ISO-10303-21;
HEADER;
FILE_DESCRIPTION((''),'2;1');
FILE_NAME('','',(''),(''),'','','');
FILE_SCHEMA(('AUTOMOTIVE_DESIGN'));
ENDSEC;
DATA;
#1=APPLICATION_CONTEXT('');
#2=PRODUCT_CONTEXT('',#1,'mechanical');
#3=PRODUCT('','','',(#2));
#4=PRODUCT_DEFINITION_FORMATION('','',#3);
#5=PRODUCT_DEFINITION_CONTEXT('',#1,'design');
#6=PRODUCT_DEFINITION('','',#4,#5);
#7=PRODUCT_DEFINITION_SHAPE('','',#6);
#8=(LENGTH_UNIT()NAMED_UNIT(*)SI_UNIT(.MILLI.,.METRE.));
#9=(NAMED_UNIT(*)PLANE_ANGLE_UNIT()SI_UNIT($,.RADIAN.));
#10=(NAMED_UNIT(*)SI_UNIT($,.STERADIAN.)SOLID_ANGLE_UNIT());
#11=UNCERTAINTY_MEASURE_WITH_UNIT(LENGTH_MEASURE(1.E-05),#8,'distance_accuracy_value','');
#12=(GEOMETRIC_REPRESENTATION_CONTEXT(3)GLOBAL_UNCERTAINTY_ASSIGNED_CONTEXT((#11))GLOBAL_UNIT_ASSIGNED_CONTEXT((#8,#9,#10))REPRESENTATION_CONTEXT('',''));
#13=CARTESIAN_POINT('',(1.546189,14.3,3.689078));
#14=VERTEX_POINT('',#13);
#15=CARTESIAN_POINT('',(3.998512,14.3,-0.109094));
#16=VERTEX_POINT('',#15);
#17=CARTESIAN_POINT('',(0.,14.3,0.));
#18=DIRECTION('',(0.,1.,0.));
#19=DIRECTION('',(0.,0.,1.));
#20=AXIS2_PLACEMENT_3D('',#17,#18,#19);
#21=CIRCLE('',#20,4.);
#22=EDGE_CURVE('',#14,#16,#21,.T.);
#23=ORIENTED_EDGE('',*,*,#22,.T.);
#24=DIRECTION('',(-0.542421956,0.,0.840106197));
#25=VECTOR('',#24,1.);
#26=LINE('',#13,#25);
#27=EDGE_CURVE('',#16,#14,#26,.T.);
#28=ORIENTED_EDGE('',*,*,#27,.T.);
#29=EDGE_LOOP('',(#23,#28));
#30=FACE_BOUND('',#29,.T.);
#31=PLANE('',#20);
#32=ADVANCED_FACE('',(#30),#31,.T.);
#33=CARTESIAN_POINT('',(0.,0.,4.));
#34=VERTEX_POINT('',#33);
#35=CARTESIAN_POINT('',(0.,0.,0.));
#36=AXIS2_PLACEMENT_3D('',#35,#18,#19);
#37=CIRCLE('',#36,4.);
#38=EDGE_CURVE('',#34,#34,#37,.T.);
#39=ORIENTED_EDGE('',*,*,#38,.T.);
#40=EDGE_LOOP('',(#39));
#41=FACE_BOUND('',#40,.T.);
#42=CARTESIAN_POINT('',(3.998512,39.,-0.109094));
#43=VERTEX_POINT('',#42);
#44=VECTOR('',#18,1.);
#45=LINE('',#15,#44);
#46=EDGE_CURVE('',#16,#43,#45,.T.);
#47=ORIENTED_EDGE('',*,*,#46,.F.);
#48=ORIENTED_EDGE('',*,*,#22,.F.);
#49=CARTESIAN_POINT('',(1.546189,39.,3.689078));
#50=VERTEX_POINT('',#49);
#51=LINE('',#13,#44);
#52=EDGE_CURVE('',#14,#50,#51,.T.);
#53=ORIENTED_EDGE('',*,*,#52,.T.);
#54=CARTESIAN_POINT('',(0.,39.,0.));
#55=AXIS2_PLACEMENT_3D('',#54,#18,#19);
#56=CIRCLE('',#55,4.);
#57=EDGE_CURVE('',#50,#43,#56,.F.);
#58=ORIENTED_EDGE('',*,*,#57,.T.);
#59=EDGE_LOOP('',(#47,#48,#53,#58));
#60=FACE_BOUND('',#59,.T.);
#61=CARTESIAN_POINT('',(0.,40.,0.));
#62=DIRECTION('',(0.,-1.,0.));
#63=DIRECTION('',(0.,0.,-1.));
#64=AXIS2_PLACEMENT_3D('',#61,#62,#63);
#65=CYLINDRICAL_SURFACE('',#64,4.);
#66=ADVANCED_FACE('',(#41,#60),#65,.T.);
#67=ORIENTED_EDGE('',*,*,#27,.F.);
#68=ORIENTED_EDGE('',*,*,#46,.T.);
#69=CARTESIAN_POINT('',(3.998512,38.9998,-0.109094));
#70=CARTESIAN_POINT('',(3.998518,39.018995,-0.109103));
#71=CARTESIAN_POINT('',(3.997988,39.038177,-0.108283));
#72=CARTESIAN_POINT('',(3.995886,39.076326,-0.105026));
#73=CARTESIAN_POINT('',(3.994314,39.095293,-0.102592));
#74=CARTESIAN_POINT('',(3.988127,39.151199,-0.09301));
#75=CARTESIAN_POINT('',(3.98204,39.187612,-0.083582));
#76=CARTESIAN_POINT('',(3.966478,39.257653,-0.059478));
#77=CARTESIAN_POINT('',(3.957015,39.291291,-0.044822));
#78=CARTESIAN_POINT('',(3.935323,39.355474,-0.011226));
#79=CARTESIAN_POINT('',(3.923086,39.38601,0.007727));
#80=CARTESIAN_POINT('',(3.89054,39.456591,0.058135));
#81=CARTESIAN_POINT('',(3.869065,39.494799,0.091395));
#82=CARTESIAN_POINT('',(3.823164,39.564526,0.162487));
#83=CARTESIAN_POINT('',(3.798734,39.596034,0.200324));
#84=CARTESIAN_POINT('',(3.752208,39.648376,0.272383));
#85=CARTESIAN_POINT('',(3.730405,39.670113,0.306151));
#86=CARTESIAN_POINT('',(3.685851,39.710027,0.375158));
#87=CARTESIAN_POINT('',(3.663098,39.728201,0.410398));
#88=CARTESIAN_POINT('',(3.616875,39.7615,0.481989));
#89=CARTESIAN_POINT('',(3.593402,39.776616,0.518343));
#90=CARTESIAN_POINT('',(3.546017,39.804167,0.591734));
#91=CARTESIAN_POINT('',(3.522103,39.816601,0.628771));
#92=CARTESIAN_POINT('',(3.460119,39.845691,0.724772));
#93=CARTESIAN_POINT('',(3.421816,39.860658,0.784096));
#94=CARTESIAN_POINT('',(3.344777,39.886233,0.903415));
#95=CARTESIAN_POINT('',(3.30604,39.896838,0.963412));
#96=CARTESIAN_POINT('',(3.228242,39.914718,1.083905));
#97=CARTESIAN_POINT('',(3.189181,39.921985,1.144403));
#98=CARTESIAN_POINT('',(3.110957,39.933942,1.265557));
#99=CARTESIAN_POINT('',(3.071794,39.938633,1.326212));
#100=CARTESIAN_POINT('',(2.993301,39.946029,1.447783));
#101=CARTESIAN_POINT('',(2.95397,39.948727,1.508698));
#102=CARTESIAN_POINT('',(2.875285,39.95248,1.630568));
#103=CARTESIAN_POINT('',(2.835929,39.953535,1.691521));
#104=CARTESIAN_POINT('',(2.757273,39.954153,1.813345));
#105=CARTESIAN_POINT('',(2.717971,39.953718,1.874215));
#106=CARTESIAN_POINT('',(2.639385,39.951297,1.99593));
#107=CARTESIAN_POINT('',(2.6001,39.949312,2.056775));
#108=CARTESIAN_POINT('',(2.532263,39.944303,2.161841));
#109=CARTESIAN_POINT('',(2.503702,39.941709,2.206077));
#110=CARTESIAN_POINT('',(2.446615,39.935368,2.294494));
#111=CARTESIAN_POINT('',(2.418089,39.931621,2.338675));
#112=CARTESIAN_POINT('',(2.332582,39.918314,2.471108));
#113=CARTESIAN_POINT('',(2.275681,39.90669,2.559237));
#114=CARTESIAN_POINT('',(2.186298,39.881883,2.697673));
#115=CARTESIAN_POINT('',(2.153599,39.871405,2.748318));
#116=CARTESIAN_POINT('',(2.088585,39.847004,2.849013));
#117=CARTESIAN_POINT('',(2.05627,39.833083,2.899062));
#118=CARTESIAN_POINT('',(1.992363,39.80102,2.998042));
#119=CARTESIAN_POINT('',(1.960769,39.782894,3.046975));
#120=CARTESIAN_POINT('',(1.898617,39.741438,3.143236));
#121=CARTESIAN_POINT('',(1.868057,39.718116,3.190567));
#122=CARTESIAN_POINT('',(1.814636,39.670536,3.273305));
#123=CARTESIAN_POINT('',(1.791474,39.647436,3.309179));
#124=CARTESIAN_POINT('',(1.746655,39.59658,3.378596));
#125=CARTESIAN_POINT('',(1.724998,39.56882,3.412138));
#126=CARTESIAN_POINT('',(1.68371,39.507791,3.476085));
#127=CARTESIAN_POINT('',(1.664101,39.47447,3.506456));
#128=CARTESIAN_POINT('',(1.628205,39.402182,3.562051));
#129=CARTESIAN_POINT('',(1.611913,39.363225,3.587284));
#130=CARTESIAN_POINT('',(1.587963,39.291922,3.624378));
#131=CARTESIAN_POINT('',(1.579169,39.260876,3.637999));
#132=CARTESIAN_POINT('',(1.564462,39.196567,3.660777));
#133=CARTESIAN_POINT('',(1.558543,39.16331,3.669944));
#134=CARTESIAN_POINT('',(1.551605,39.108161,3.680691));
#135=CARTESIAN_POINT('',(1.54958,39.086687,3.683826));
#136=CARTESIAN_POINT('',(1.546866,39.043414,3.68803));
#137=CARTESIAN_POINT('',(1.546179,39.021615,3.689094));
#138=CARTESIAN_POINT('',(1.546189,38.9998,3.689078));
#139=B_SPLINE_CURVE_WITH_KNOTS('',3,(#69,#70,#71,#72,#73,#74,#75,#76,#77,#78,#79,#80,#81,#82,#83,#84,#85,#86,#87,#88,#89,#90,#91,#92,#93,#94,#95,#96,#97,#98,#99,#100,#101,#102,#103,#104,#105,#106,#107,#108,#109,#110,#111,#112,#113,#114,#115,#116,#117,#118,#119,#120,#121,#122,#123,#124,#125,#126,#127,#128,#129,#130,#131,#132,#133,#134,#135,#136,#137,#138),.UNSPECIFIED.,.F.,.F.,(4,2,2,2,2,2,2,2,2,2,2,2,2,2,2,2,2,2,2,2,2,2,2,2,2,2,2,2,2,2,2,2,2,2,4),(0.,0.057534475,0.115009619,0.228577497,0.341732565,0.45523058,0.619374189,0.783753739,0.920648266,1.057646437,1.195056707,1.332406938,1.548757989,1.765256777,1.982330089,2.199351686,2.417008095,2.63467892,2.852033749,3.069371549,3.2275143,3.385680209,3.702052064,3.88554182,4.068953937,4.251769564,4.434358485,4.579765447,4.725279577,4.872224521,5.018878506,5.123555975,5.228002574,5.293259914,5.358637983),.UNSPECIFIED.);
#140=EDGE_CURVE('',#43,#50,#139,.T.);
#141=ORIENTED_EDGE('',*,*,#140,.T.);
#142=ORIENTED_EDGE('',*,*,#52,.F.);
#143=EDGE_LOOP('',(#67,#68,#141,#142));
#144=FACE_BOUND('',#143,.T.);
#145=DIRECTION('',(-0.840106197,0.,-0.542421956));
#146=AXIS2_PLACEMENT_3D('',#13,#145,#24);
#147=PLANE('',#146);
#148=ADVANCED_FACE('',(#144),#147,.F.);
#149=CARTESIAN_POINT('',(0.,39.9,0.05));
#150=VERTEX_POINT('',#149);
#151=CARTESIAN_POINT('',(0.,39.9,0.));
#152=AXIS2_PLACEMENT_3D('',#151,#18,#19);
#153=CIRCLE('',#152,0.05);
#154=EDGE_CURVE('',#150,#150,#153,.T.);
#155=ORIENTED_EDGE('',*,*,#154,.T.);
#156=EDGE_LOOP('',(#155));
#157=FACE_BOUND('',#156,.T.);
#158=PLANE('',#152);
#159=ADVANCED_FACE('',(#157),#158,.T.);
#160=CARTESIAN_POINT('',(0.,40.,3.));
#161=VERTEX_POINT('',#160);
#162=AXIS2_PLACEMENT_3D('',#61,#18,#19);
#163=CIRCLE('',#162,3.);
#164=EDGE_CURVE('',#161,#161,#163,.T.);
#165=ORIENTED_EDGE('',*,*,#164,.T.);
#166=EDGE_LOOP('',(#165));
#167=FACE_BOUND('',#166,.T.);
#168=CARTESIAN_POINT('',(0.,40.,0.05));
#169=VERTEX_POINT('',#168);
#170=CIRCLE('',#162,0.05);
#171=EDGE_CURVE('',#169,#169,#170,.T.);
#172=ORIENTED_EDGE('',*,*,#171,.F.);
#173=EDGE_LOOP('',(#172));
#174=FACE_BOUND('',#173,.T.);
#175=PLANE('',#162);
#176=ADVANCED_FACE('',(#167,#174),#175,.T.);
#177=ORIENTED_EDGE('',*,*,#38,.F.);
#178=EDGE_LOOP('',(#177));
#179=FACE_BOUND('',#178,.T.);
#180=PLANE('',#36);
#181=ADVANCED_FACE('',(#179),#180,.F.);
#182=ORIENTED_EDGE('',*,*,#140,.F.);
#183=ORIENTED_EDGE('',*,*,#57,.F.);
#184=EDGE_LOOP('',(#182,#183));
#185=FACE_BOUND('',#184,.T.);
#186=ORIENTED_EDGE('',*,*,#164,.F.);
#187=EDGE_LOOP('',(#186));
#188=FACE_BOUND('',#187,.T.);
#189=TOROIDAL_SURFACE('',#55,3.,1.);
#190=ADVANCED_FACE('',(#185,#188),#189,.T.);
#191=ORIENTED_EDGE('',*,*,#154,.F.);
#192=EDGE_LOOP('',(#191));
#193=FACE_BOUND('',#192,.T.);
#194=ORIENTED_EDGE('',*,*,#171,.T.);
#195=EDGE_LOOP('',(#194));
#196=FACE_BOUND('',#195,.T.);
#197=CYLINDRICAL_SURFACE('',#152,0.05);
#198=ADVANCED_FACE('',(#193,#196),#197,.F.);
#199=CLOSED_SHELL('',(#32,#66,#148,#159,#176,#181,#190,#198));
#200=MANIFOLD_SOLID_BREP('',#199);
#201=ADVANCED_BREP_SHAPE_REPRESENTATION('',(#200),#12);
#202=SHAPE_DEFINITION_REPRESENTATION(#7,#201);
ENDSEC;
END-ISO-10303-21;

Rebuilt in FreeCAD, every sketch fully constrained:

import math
import FreeCAD as App
import Part
import Sketcher

V = App.Vector


def edges_at(feature, points):
    """Names of the edges that pass closest to the given points."""
    edges = feature.Shape.Edges
    near = lambda p: min(range(len(edges)), key=lambda i: edges[i].distToShape(Part.Vertex(*p))[0])
    return sorted({f"Edge{near(p) + 1}" for p in points})

doc = App.newDocument("Part")
body = doc.addObject("PartDesign::Body", "Body")

# Sketch on XZ plane
sketch1 = body.newObject("Sketcher::SketchObject", "Sketch")
sketch1.AttachmentSupport = (doc.getObject("XZ_Plane"), [""])
sketch1.MapMode = "FlatFace"
sketch1.addGeometry(Part.Circle(V(0, 0, 0), V(0, 0, 1), 4), False)
sketch1.addConstraint(Sketcher.Constraint("Coincident", 0, 3, -1, 1))
sketch1.addConstraint(Sketcher.Constraint("Diameter", 0, 8.0))
pad1 = body.newObject("PartDesign::Pad", "Pad")
pad1.Profile = sketch1
pad1.Length = 40
pad1.Reversed = True
doc.recompute()

fillet = body.newObject("PartDesign::Fillet", "Fillet")
fillet.Base = (pad1, edges_at(pad1, [(0, 40, -4)]))
fillet.Radius = 1

# Sketch on XZ plane
sketch2 = body.newObject("Sketcher::SketchObject", "Sketch001")
sketch2.AttachmentSupport = (doc.getObject("XZ_Plane"), [""])
sketch2.MapMode = "FlatFace"
sketch2.AttachmentOffset = App.Placement(V(0, 0, -14.3), App.Rotation())
sketch2.addGeometry(Part.LineSegment(V(4, -0.1, 0), V(1.5, 3.7, 0)), False)
sketch2.addGeometry(Part.ArcOfCircle(Part.Circle(V(0, 0, 0), V(0, 0, 1), 4), math.radians(-2), math.radians(67)), False)
sketch2.addConstraint(Sketcher.Constraint("Coincident", 0, 1, 1, 1))
sketch2.addConstraint(Sketcher.Constraint("Coincident", 1, 2, 0, 2))
sketch2.addConstraint(Sketcher.Constraint("Coincident", 1, 3, -1, 1))
sketch2.addConstraint(Sketcher.Constraint("Radius", 1, 4.0))
sketch2.addConstraint(Sketcher.Constraint("Distance", 0, 4.521062))
sketch2.addConstraint(Sketcher.Constraint("DistanceX", -1, 1, 1, 2, 1.546189))
pocket1 = body.newObject("PartDesign::Pocket", "Pocket")
pocket1.Profile = sketch2
pocket1.Length = 25.7

# Sketch on XZ plane
sketch3 = body.newObject("Sketcher::SketchObject", "Sketch002")
sketch3.AttachmentSupport = (doc.getObject("XZ_Plane"), [""])
sketch3.MapMode = "FlatFace"
sketch3.AttachmentOffset = App.Placement(V(0, 0, -40), App.Rotation())
sketch3.addGeometry(Part.Circle(V(0, 0, 0), V(0, 0, 1), 0.05), False)
sketch3.addConstraint(Sketcher.Constraint("Coincident", 0, 3, -1, 1))
sketch3.addConstraint(Sketcher.Constraint("Diameter", 0, 0.1))
pocket2 = body.newObject("PartDesign::Pocket", "Pocket001")
pocket2.Profile = sketch3
pocket2.Length = 0.1
pocket2.Reversed = True

doc.recompute()
